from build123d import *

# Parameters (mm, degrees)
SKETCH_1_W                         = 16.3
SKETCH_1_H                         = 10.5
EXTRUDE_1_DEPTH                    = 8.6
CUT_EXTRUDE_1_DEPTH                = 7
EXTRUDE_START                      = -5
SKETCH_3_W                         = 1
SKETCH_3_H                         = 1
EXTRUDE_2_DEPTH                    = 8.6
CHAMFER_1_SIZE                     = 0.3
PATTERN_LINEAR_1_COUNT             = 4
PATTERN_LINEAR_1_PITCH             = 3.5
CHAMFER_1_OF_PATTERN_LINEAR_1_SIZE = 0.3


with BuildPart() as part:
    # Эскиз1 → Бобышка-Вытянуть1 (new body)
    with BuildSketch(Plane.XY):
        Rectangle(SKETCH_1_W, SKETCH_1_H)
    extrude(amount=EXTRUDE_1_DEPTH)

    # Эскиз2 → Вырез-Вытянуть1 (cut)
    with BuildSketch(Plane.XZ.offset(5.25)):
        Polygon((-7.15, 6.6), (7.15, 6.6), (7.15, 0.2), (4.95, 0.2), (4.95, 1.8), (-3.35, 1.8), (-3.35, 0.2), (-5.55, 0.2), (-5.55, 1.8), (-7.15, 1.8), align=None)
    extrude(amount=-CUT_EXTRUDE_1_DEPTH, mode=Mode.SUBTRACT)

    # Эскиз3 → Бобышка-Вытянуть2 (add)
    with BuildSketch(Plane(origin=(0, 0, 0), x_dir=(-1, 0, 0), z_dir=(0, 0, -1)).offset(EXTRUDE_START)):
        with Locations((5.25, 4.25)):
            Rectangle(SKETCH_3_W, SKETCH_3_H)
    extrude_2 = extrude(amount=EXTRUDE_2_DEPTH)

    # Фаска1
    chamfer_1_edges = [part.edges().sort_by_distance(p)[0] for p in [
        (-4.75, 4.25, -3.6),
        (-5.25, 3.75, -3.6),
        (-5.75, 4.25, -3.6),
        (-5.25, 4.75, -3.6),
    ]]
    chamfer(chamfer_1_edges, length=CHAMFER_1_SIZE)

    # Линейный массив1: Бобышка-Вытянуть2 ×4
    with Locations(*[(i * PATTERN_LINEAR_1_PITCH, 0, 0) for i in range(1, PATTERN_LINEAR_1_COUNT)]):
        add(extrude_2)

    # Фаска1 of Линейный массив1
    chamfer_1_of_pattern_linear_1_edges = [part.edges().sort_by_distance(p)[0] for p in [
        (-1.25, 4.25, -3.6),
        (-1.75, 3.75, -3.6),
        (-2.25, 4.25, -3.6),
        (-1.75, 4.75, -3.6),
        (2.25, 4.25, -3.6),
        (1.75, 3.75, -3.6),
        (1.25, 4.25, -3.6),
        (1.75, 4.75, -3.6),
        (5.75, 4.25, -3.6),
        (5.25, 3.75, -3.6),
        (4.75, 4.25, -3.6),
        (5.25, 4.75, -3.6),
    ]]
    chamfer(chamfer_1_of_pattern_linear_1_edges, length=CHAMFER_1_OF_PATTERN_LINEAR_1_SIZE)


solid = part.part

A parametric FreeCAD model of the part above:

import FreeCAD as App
import Part
import Sketcher
from FreeCAD import Vector
Q = App.Units.Quantity


def edges_at(feature, points):
    """Names of the edges that pass closest to the given points."""
    edges = feature.Shape.Edges
    near = lambda p: min(range(len(edges)), key=lambda i: edges[i].distToShape(Part.Vertex(*p))[0])
    return sorted({f"Edge{near(p) + 1}" for p in points})


def add_polygon(sketch, points):
    """Adds a closed chain of lines whose ends are joined by coincident constraints."""
    first, n = sketch.GeometryCount, len(points)
    for a, b in zip(points, points[1:] + points[:1]):
        sketch.addGeometry(Part.LineSegment(App.Vector(*a, 0), App.Vector(*b, 0)), False)
    for i in range(n):
        sketch.addConstraint(Sketcher.Constraint("Coincident", first + i, 2, first + (i + 1) % n, 1))

doc = App.newDocument("Part")
body = doc.addObject("PartDesign::Body", "Body")

# Sketch on XY plane
sketch1 = body.newObject("Sketcher::SketchObject", "Sketch")
sketch1.AttachmentSupport = (doc.getObject("XY_Plane"), [""])
sketch1.MapMode = "FlatFace"
add_polygon(sketch1, [(-8, 5), (-8, -5), (8, -5), (8, 5)])  # lines 0-3
sketch1.addConstraint(Sketcher.Constraint("Vertical", 0))
sketch1.addConstraint(Sketcher.Constraint("Horizontal", 1))
sketch1.addConstraint(Sketcher.Constraint("Vertical", 2))
sketch1.addConstraint(Sketcher.Constraint("Horizontal", 3))
sketch1.addConstraint(Sketcher.Constraint("Symmetric", 0, 2, 2, 2, -1, 1))
sketch1.addConstraint(Sketcher.Constraint("DistanceX", 1, 1, 1, 2, Q("16.3 mm")))
sketch1.addConstraint(Sketcher.Constraint("DistanceY", 0, 2, 0, 1, Q("10.5 mm")))
pad1 = body.newObject("PartDesign::Pad", "Pad")
pad1.Profile = sketch1
pad1.Length = 8.6

# Sketch on XZ plane
sketch2 = body.newObject("Sketcher::SketchObject", "Sketch001")
sketch2.AttachmentSupport = (doc.getObject("XZ_Plane"), [""])
sketch2.MapMode = "FlatFace"
sketch2.AttachmentOffset = App.Placement(Vector(0, 0, 5.25), App.Rotation())
add_polygon(sketch2, [(7.2, 6.6), (-7.2, 6.6), (-7.2, 1.8), (-5.5, 1.8), (-5.5, 0.2), (-3.4, 0.2), (-3.4, 1.8), (5, 1.8), (5, 0.2), (7.2, 0.2)])  # lines 0-9
sketch2.addConstraint(Sketcher.Constraint("Horizontal", 0))
sketch2.addConstraint(Sketcher.Constraint("Vertical", 1))
sketch2.addConstraint(Sketcher.Constraint("Horizontal", 2))
sketch2.addConstraint(Sketcher.Constraint("Vertical", 3))
sketch2.addConstraint(Sketcher.Constraint("Horizontal", 4))
sketch2.addConstraint(Sketcher.Constraint("Vertical", 5))
sketch2.addConstraint(Sketcher.Constraint("Horizontal", 6))
sketch2.addConstraint(Sketcher.Constraint("Vertical", 7))
sketch2.addConstraint(Sketcher.Constraint("Horizontal", 8))
sketch2.addConstraint(Sketcher.Constraint("Vertical", 9))
sketch2.addConstraint(Sketcher.Constraint("Horizontal", 2, 2, 5, 2))
sketch2.addConstraint(Sketcher.Constraint("Horizontal", 4, 2, 7, 2))
sketch2.addConstraint(Sketcher.Constraint("Equal", 4, 8))
sketch2.addConstraint(Sketcher.Constraint("Equal", 2, 3))
sketch2.addConstraint(Sketcher.Constraint("DistanceX", 0, 2, 0, 1, Q("14.3 mm")))
sketch2.addConstraint(Sketcher.Constraint("DistanceX", 2, 1, 2, 2, Q("1.6 mm")))
sketch2.addConstraint(Sketcher.Constraint("DistanceX", 4, 1, 4, 2, Q("2.2 mm")))
sketch2.addConstraint(Sketcher.Constraint("DistanceY", 1, 2, 1, 1, Q("4.8 mm")))
sketch2.addConstraint(Sketcher.Constraint("DistanceY", -1, 1, 0, 2, Q("6.6 mm")))
sketch2.addConstraint(Sketcher.Constraint("DistanceX", 0, 2, -1, 1, Q("7.15 mm")))
pocket1 = body.newObject("PartDesign::Pocket", "Pocket")
pocket1.Profile = sketch2
pocket1.Length = 7

# Sketch on XY plane
sketch3 = body.newObject("Sketcher::SketchObject", "Sketch002")
sketch3.AttachmentSupport = (doc.getObject("XY_Plane"), [""])
sketch3.MapMode = "FlatFace"
sketch3.AttachmentOffset = App.Placement(Vector(0, 0, 5), App.Rotation())
add_polygon(sketch3, [(-4.8, 4.8), (-4.8, 3.8), (-5.8, 3.8), (-5.8, 4.8)])  # lines 0-3
sketch3.addConstraint(Sketcher.Constraint("Vertical", 0))
sketch3.addConstraint(Sketcher.Constraint("Horizontal", 1))
sketch3.addConstraint(Sketcher.Constraint("Vertical", 2))
sketch3.addConstraint(Sketcher.Constraint("Horizontal", 3))
sketch3.addConstraint(Sketcher.Constraint("Equal", 3, 0))
sketch3.addConstraint(Sketcher.Constraint("DistanceX", 1, 2, 1, 1, Q("1 mm")))
sketch3.addConstraint(Sketcher.Constraint("DistanceX", 0, 2, -1, 1, Q("4.75 mm")))
sketch3.addConstraint(Sketcher.Constraint("DistanceY", -1, 1, 0, 2, Q("3.75 mm")))
pad2 = body.newObject("PartDesign::Pad", "Pad001")
pad2.Profile = sketch3
pad2.Length = 8.6
pad2.Reversed = True
doc.recompute()

chamfer = body.newObject("PartDesign::Chamfer", "Chamfer")
chamfer.Base = (pad2, edges_at(pad2, [
    (-4.75, 4.25, -3.6),
    (-5.25, 3.75, -3.6),
    (-5.75, 4.25, -3.6),
    (-5.25, 4.75, -3.6),
]))
chamfer.Size = 0.3
doc.recompute()

linearpattern = body.newObject("PartDesign::LinearPattern", "LinearPattern")
linearpattern.Originals = [pad2]
linearpattern.Direction = (doc.getObject("X_Axis"), [""])
linearpattern.Mode = "offset"
linearpattern.Offset = 3.5
linearpattern.Occurrences = 4
body.Tip = linearpattern
doc.recompute()

chamfer2 = body.newObject("PartDesign::Chamfer", "Chamfer001")
chamfer2.Base = (linearpattern, edges_at(linearpattern, [
    (-1.25, 4.25, -3.6),
    (-1.75, 3.75, -3.6),
    (-2.25, 4.25, -3.6),
    (-1.75, 4.75, -3.6),
    (2.25, 4.25, -3.6),
    (1.75, 3.75, -3.6),
    (1.25, 4.25, -3.6),
    (1.75, 4.75, -3.6),
    (5.75, 4.25, -3.6),
    (5.25, 3.75, -3.6),
    (4.75, 4.25, -3.6),
    (5.25, 4.75, -3.6),
]))
chamfer2.Size = 0.3

doc.recompute()
